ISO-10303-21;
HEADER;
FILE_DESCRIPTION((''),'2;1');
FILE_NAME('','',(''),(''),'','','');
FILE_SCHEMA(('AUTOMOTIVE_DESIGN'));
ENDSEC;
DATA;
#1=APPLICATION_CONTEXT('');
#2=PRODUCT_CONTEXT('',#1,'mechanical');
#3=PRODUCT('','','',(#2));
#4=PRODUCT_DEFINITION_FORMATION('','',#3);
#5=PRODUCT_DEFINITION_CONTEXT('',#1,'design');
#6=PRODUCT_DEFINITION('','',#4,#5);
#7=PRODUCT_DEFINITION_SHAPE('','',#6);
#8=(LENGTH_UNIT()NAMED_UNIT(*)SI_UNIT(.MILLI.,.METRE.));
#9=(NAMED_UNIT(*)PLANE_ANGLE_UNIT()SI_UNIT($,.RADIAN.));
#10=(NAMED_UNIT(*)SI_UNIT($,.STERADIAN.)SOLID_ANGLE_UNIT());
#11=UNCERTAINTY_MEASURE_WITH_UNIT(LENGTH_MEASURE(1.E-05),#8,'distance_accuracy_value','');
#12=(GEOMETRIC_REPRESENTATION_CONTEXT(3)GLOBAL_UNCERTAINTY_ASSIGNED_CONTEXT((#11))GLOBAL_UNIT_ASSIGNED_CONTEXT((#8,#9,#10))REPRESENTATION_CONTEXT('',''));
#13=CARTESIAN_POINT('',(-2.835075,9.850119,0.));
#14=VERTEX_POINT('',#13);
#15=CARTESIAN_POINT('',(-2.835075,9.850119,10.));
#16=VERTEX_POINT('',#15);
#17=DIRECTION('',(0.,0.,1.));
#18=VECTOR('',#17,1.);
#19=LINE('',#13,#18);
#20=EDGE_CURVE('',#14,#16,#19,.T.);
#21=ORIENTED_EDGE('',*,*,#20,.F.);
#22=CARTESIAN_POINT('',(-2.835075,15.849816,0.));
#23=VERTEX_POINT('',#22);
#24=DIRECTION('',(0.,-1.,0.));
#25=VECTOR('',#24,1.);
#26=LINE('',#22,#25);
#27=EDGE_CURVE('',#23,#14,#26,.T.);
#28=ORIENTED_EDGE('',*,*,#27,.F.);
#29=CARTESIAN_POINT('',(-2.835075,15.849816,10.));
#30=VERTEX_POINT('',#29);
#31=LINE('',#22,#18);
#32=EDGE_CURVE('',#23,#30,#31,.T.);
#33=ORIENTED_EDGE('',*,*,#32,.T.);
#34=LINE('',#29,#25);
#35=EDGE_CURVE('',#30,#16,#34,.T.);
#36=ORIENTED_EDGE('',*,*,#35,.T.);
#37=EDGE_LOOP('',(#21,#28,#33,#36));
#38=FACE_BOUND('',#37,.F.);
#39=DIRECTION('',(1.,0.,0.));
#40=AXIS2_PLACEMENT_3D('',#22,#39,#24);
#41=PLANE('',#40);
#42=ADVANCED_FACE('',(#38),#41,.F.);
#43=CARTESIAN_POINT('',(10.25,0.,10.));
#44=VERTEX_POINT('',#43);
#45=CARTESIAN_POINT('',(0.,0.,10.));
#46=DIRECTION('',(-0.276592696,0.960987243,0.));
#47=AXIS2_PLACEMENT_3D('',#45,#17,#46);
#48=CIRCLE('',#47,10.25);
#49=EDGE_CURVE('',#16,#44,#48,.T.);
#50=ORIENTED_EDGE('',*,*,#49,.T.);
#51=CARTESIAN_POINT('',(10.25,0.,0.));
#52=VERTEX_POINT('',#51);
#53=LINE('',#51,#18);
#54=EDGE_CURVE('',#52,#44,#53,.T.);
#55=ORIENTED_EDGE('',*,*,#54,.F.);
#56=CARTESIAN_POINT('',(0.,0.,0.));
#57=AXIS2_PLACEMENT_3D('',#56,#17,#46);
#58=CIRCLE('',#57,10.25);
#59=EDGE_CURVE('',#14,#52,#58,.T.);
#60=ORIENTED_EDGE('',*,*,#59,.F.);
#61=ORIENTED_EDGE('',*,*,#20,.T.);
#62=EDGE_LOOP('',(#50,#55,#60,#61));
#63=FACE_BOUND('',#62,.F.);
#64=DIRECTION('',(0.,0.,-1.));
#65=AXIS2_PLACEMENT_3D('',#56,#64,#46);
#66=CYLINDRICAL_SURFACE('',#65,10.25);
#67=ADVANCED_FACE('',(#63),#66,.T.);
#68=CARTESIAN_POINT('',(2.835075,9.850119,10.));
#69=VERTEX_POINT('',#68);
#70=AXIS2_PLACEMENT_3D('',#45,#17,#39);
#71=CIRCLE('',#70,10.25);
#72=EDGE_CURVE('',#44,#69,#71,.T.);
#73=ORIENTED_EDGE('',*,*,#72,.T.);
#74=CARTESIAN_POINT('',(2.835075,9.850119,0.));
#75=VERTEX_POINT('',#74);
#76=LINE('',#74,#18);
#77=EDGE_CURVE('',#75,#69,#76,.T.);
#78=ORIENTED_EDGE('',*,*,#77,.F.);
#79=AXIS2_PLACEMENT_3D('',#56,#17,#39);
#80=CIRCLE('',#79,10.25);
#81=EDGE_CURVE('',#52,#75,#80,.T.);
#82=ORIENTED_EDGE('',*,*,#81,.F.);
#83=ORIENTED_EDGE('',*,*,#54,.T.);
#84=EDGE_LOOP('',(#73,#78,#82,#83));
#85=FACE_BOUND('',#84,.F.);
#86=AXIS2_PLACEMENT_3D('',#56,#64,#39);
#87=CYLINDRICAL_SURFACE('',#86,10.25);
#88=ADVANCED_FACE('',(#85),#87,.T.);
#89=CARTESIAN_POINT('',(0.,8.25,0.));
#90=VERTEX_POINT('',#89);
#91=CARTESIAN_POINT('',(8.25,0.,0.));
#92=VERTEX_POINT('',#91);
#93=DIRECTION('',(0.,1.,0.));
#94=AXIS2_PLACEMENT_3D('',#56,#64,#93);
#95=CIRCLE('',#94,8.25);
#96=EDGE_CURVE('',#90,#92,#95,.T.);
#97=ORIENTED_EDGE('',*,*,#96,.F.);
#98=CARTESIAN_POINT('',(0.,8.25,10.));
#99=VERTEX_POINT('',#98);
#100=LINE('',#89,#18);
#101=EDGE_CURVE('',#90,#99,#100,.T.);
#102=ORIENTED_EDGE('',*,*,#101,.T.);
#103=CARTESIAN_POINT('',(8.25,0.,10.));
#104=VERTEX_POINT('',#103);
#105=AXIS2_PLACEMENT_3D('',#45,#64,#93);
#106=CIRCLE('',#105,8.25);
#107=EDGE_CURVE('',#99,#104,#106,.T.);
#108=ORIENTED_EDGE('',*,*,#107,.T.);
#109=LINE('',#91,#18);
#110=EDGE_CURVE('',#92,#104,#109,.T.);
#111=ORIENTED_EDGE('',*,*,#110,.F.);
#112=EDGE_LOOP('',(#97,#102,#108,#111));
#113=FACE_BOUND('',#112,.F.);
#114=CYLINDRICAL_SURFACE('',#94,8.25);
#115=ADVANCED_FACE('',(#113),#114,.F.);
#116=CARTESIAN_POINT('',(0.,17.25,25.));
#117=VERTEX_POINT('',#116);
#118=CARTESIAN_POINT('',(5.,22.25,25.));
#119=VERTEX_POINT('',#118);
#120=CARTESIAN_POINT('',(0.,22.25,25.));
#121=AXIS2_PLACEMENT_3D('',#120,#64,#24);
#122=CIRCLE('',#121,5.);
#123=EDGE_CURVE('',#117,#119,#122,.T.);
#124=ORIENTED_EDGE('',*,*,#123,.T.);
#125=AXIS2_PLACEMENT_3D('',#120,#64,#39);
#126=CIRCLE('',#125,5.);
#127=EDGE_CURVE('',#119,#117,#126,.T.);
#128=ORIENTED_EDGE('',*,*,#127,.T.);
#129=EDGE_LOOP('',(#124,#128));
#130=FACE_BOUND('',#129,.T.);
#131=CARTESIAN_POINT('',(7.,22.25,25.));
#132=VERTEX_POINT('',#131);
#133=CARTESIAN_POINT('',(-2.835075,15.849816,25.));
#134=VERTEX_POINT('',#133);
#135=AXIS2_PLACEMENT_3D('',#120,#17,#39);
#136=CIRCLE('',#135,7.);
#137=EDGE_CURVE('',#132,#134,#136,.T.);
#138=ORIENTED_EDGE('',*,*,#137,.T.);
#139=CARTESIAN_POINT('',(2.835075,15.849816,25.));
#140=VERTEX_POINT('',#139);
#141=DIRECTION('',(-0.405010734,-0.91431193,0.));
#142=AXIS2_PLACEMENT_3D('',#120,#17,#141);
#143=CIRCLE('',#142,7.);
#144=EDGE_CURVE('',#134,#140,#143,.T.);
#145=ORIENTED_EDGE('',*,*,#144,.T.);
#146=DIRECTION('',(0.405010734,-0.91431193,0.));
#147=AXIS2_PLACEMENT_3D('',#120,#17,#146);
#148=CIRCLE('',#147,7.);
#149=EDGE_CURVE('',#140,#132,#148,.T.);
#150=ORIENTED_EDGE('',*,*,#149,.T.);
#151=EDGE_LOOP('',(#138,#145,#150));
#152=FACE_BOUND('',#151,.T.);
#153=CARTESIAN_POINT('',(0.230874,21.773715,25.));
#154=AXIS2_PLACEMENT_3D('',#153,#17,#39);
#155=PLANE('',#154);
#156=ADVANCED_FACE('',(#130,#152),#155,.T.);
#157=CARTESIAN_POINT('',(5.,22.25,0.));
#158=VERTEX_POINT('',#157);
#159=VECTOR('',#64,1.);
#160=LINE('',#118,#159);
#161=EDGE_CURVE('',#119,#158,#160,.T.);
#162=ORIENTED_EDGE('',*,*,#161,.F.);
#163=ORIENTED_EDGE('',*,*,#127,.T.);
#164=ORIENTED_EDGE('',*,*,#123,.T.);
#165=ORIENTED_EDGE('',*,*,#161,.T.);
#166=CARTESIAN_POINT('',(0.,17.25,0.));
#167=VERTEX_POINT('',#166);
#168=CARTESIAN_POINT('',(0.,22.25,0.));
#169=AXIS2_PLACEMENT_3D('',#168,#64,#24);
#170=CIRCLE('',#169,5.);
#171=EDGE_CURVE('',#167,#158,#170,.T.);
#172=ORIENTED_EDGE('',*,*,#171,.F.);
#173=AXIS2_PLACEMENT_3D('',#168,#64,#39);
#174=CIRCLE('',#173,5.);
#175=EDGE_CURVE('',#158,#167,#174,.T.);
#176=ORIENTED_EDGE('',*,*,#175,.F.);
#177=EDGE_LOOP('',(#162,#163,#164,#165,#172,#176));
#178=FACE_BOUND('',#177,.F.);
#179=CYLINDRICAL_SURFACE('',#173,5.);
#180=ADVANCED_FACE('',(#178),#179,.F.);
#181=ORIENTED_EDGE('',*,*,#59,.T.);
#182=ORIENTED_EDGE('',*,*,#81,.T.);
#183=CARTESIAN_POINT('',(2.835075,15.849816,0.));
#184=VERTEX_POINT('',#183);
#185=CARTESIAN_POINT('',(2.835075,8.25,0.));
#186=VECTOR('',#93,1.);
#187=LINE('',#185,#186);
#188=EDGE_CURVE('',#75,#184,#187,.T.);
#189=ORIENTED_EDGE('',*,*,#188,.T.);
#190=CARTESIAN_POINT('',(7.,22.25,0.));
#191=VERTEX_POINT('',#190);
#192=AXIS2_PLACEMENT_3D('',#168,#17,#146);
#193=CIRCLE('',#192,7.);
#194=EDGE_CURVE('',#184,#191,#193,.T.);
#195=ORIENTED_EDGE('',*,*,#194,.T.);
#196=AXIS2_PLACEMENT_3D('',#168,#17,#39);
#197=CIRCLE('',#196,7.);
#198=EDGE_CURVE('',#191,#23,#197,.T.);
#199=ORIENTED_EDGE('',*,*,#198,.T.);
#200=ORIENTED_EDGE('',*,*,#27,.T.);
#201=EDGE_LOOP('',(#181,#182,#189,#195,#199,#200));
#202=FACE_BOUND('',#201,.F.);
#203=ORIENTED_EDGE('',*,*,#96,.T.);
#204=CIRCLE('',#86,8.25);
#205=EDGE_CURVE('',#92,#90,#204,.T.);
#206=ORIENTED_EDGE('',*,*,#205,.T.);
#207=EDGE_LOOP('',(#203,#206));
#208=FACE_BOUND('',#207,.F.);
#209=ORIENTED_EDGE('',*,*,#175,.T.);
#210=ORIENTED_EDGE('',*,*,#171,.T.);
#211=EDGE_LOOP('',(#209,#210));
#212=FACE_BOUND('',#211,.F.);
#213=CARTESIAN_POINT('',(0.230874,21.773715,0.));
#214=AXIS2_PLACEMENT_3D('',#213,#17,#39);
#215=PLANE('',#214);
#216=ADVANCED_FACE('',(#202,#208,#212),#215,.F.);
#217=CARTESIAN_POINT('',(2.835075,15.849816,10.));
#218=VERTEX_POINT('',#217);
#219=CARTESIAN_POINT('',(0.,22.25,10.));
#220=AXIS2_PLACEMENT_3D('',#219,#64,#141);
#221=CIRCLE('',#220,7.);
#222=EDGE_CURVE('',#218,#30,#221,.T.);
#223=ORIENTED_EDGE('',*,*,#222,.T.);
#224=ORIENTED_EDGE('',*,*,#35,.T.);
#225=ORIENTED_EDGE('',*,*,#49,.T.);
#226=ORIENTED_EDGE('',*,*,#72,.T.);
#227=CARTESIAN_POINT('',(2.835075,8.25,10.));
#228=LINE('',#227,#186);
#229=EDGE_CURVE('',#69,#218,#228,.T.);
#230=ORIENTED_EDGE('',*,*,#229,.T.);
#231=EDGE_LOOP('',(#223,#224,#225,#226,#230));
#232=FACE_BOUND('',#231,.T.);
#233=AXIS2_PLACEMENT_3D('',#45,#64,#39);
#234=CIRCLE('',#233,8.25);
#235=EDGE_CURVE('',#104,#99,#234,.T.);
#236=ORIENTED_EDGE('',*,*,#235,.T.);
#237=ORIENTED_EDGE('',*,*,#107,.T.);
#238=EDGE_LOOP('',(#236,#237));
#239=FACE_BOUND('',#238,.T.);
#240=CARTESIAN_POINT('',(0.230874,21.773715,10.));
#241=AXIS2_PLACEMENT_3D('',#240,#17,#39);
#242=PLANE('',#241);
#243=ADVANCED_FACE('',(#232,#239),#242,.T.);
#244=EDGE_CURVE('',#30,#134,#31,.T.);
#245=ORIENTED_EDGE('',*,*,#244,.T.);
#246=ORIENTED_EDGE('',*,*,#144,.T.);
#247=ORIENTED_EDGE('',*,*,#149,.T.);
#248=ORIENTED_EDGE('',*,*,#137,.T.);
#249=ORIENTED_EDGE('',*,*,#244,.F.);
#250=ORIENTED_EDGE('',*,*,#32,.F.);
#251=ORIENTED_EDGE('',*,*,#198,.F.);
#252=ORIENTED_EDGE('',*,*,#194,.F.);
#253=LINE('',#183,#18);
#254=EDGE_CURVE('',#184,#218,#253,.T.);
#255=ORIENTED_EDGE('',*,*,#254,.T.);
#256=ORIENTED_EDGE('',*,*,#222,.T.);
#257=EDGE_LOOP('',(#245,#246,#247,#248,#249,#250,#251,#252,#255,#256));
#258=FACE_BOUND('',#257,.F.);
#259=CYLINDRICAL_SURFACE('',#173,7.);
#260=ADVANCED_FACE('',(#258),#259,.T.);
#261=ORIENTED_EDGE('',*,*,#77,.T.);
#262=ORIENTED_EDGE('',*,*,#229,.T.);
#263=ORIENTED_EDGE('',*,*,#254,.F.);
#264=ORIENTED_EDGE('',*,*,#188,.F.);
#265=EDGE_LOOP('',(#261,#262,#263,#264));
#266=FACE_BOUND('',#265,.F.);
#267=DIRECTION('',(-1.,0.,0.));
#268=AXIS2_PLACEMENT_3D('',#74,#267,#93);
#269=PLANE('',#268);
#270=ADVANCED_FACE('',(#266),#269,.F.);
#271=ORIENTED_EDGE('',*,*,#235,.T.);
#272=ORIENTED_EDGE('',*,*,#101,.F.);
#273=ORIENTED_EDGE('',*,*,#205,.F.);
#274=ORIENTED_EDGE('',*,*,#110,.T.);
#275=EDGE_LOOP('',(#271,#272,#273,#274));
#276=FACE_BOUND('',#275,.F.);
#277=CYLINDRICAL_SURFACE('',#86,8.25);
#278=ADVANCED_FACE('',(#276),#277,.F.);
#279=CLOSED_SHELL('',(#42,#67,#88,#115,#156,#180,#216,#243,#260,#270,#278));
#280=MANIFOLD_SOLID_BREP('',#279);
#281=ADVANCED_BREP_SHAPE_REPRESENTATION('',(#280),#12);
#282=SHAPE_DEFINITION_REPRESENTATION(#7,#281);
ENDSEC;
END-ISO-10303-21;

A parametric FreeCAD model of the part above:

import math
import FreeCAD as App
import Part
import Sketcher

V = App.Vector

doc = App.newDocument("Part")
body = doc.addObject("PartDesign::Body", "Body")

# Sketch on XY plane
sketch1 = body.newObject("Sketcher::SketchObject", "Sketch")
sketch1.AttachmentSupport = (doc.getObject("XY_Plane"), [""])
sketch1.MapMode = "FlatFace"
sketch1.addGeometry([
    Part.ArcOfCircle(Part.Circle(V(0, 22.25, 0), V(0, 0, 1), 7), math.radians(0), math.radians(246.1082)),  # 0
    Part.LineSegment(V(-2.835075, 15.849816, 0), V(-2.835075, 9.850119, 0)),  # 1
    Part.ArcOfCircle(Part.Circle(V(0, 0, 0), V(0, 0, 1), 10.25), math.radians(106.056951), math.radians(360)),  # 2
    Part.ArcOfCircle(Part.Circle(V(0, 0, 0), V(0, 0, 1), 10.25), math.radians(0), math.radians(73.943049)),  # 3
    Part.LineSegment(V(2.835075, 9.850119, 0), V(2.835075, 15.849816, 0)),  # 4
    Part.ArcOfCircle(Part.Circle(V(0, 22.25, 0), V(0, 0, 1), 7), math.radians(-66.1082), math.radians(0)),  # 5
    Part.ArcOfCircle(Part.Circle(V(0, 0, 0), V(0, 0, 1), 8.25), math.radians(90), math.radians(360)),  # 6
    Part.ArcOfCircle(Part.Circle(V(0, 0, 0), V(0, 0, 1), 8.25), math.radians(0), math.radians(90)),  # 7
    Part.ArcOfCircle(Part.Circle(V(0, 22.25, 0), V(0, 0, 1), 5), math.radians(-90), math.radians(0)),  # 8
    Part.ArcOfCircle(Part.Circle(V(0, 22.25, 0), V(0, 0, 1), 5), math.radians(0), math.radians(270)),  # 9
], False)
sketch1.addConstraint([
    Sketcher.Constraint("Coincident", 0, 2, 1, 1),
    Sketcher.Constraint("Coincident", 1, 2, 2, 1),
    Sketcher.Constraint("Tangent", 2, 2, 3, 1),
    Sketcher.Constraint("Coincident", 3, 2, 4, 1),
    Sketcher.Constraint("Coincident", 4, 2, 5, 1),
    Sketcher.Constraint("Tangent", 5, 2, 0, 1),
    Sketcher.Constraint("Tangent", 6, 1, 7, 2),
    Sketcher.Constraint("Coincident", 7, 1, 6, 2),
    Sketcher.Constraint("Tangent", 8, 1, 9, 2),
    Sketcher.Constraint("Coincident", 9, 1, 8, 2),
    Sketcher.Constraint("Vertical", 1),
    Sketcher.Constraint("Vertical", 4),
    Sketcher.Constraint("Coincident", 2, 3, -1, 1),
    Sketcher.Constraint("Coincident", 6, 3, -1, 1),
    Sketcher.Constraint("Coincident", 8, 3, 0, 3),
    Sketcher.Constraint("Equal", 2, 3),
    Sketcher.Constraint("Equal", 0, 5),
    Sketcher.Constraint("Symmetric", 0, 2, 4, 2, -2),
    Sketcher.Constraint("PointOnObject", 2, 2, -1),
    Sketcher.Constraint("PointOnObject", 6, 1, -2),
    Sketcher.Constraint("PointOnObject", 7, 1, -1),
    Sketcher.Constraint("PointOnObject", 8, 1, -2),
    Sketcher.Constraint("Horizontal", 9, 3, 5, 2),
    Sketcher.Constraint("Horizontal", 5, 2, 9, 1),
    Sketcher.Constraint("Radius", 0, 7.0),
    Sketcher.Constraint("Radius", 8, 5.0),
    Sketcher.Constraint("Radius", 2, 10.25),
    Sketcher.Constraint("Radius", 6, 8.25),
    Sketcher.Constraint("DistanceY", -1, 1, 0, 3, 22.25),
    Sketcher.Constraint("DistanceY", 1, 2, 1, 1, 5.999697),
])
pad1 = body.newObject("PartDesign::Pad", "Pad")
pad1.Profile = sketch1
pad1.Length = 10

# Sketch on XY plane
sketch2 = body.newObject("Sketcher::SketchObject", "Sketch001")
sketch2.AttachmentSupport = (doc.getObject("XY_Plane"), [""])
sketch2.MapMode = "FlatFace"
sketch2.addGeometry([
    Part.ArcOfCircle(Part.Circle(V(0, 22.25, 0), V(0, 0, 1), 7), math.radians(0), math.radians(246.1082)),  # 0
    Part.ArcOfCircle(Part.Circle(V(0, 22.25, 0), V(0, 0, 1), 7), math.radians(-113.8918), math.radians(-66.1082)),  # 1
    Part.ArcOfCircle(Part.Circle(V(0, 22.25, 0), V(0, 0, 1), 7), math.radians(-66.1082), math.radians(0)),  # 2
    Part.ArcOfCircle(Part.Circle(V(0, 22.25, 0), V(0, 0, 1), 5), math.radians(-90), math.radians(0)),  # 3
    Part.ArcOfCircle(Part.Circle(V(0, 22.25, 0), V(0, 0, 1), 5), math.radians(0), math.radians(270)),  # 4
], False)
sketch2.addConstraint([
    Sketcher.Constraint("Tangent", 0, 2, 1, 1),
    Sketcher.Constraint("Tangent", 1, 2, 2, 1),
    Sketcher.Constraint("Tangent", 2, 2, 0, 1),
    Sketcher.Constraint("Tangent", 3, 1, 4, 2),
    Sketcher.Constraint("Coincident", 4, 1, 3, 2),
    Sketcher.Constraint("Coincident", 3, 3, 0, 3),
    Sketcher.Constraint("Symmetric", 0, 2, 1, 2, -2),
    Sketcher.Constraint("PointOnObject", 3, 1, -2),
    Sketcher.Constraint("Horizontal", 4, 3, 2, 2),
    Sketcher.Constraint("Horizontal", 2, 2, 4, 1),
    Sketcher.Constraint("Radius", 0, 7.0),
    Sketcher.Constraint("Radius", 3, 5.0),
    Sketcher.Constraint("DistanceY", -1, 1, 0, 3, 22.25),
    Sketcher.Constraint("DistanceX", 0, 2, 1, 2, 5.67015),
])
pad2 = body.newObject("PartDesign::Pad", "Pad001")
pad2.Profile = sketch2
pad2.Length = 25

doc.recompute()
